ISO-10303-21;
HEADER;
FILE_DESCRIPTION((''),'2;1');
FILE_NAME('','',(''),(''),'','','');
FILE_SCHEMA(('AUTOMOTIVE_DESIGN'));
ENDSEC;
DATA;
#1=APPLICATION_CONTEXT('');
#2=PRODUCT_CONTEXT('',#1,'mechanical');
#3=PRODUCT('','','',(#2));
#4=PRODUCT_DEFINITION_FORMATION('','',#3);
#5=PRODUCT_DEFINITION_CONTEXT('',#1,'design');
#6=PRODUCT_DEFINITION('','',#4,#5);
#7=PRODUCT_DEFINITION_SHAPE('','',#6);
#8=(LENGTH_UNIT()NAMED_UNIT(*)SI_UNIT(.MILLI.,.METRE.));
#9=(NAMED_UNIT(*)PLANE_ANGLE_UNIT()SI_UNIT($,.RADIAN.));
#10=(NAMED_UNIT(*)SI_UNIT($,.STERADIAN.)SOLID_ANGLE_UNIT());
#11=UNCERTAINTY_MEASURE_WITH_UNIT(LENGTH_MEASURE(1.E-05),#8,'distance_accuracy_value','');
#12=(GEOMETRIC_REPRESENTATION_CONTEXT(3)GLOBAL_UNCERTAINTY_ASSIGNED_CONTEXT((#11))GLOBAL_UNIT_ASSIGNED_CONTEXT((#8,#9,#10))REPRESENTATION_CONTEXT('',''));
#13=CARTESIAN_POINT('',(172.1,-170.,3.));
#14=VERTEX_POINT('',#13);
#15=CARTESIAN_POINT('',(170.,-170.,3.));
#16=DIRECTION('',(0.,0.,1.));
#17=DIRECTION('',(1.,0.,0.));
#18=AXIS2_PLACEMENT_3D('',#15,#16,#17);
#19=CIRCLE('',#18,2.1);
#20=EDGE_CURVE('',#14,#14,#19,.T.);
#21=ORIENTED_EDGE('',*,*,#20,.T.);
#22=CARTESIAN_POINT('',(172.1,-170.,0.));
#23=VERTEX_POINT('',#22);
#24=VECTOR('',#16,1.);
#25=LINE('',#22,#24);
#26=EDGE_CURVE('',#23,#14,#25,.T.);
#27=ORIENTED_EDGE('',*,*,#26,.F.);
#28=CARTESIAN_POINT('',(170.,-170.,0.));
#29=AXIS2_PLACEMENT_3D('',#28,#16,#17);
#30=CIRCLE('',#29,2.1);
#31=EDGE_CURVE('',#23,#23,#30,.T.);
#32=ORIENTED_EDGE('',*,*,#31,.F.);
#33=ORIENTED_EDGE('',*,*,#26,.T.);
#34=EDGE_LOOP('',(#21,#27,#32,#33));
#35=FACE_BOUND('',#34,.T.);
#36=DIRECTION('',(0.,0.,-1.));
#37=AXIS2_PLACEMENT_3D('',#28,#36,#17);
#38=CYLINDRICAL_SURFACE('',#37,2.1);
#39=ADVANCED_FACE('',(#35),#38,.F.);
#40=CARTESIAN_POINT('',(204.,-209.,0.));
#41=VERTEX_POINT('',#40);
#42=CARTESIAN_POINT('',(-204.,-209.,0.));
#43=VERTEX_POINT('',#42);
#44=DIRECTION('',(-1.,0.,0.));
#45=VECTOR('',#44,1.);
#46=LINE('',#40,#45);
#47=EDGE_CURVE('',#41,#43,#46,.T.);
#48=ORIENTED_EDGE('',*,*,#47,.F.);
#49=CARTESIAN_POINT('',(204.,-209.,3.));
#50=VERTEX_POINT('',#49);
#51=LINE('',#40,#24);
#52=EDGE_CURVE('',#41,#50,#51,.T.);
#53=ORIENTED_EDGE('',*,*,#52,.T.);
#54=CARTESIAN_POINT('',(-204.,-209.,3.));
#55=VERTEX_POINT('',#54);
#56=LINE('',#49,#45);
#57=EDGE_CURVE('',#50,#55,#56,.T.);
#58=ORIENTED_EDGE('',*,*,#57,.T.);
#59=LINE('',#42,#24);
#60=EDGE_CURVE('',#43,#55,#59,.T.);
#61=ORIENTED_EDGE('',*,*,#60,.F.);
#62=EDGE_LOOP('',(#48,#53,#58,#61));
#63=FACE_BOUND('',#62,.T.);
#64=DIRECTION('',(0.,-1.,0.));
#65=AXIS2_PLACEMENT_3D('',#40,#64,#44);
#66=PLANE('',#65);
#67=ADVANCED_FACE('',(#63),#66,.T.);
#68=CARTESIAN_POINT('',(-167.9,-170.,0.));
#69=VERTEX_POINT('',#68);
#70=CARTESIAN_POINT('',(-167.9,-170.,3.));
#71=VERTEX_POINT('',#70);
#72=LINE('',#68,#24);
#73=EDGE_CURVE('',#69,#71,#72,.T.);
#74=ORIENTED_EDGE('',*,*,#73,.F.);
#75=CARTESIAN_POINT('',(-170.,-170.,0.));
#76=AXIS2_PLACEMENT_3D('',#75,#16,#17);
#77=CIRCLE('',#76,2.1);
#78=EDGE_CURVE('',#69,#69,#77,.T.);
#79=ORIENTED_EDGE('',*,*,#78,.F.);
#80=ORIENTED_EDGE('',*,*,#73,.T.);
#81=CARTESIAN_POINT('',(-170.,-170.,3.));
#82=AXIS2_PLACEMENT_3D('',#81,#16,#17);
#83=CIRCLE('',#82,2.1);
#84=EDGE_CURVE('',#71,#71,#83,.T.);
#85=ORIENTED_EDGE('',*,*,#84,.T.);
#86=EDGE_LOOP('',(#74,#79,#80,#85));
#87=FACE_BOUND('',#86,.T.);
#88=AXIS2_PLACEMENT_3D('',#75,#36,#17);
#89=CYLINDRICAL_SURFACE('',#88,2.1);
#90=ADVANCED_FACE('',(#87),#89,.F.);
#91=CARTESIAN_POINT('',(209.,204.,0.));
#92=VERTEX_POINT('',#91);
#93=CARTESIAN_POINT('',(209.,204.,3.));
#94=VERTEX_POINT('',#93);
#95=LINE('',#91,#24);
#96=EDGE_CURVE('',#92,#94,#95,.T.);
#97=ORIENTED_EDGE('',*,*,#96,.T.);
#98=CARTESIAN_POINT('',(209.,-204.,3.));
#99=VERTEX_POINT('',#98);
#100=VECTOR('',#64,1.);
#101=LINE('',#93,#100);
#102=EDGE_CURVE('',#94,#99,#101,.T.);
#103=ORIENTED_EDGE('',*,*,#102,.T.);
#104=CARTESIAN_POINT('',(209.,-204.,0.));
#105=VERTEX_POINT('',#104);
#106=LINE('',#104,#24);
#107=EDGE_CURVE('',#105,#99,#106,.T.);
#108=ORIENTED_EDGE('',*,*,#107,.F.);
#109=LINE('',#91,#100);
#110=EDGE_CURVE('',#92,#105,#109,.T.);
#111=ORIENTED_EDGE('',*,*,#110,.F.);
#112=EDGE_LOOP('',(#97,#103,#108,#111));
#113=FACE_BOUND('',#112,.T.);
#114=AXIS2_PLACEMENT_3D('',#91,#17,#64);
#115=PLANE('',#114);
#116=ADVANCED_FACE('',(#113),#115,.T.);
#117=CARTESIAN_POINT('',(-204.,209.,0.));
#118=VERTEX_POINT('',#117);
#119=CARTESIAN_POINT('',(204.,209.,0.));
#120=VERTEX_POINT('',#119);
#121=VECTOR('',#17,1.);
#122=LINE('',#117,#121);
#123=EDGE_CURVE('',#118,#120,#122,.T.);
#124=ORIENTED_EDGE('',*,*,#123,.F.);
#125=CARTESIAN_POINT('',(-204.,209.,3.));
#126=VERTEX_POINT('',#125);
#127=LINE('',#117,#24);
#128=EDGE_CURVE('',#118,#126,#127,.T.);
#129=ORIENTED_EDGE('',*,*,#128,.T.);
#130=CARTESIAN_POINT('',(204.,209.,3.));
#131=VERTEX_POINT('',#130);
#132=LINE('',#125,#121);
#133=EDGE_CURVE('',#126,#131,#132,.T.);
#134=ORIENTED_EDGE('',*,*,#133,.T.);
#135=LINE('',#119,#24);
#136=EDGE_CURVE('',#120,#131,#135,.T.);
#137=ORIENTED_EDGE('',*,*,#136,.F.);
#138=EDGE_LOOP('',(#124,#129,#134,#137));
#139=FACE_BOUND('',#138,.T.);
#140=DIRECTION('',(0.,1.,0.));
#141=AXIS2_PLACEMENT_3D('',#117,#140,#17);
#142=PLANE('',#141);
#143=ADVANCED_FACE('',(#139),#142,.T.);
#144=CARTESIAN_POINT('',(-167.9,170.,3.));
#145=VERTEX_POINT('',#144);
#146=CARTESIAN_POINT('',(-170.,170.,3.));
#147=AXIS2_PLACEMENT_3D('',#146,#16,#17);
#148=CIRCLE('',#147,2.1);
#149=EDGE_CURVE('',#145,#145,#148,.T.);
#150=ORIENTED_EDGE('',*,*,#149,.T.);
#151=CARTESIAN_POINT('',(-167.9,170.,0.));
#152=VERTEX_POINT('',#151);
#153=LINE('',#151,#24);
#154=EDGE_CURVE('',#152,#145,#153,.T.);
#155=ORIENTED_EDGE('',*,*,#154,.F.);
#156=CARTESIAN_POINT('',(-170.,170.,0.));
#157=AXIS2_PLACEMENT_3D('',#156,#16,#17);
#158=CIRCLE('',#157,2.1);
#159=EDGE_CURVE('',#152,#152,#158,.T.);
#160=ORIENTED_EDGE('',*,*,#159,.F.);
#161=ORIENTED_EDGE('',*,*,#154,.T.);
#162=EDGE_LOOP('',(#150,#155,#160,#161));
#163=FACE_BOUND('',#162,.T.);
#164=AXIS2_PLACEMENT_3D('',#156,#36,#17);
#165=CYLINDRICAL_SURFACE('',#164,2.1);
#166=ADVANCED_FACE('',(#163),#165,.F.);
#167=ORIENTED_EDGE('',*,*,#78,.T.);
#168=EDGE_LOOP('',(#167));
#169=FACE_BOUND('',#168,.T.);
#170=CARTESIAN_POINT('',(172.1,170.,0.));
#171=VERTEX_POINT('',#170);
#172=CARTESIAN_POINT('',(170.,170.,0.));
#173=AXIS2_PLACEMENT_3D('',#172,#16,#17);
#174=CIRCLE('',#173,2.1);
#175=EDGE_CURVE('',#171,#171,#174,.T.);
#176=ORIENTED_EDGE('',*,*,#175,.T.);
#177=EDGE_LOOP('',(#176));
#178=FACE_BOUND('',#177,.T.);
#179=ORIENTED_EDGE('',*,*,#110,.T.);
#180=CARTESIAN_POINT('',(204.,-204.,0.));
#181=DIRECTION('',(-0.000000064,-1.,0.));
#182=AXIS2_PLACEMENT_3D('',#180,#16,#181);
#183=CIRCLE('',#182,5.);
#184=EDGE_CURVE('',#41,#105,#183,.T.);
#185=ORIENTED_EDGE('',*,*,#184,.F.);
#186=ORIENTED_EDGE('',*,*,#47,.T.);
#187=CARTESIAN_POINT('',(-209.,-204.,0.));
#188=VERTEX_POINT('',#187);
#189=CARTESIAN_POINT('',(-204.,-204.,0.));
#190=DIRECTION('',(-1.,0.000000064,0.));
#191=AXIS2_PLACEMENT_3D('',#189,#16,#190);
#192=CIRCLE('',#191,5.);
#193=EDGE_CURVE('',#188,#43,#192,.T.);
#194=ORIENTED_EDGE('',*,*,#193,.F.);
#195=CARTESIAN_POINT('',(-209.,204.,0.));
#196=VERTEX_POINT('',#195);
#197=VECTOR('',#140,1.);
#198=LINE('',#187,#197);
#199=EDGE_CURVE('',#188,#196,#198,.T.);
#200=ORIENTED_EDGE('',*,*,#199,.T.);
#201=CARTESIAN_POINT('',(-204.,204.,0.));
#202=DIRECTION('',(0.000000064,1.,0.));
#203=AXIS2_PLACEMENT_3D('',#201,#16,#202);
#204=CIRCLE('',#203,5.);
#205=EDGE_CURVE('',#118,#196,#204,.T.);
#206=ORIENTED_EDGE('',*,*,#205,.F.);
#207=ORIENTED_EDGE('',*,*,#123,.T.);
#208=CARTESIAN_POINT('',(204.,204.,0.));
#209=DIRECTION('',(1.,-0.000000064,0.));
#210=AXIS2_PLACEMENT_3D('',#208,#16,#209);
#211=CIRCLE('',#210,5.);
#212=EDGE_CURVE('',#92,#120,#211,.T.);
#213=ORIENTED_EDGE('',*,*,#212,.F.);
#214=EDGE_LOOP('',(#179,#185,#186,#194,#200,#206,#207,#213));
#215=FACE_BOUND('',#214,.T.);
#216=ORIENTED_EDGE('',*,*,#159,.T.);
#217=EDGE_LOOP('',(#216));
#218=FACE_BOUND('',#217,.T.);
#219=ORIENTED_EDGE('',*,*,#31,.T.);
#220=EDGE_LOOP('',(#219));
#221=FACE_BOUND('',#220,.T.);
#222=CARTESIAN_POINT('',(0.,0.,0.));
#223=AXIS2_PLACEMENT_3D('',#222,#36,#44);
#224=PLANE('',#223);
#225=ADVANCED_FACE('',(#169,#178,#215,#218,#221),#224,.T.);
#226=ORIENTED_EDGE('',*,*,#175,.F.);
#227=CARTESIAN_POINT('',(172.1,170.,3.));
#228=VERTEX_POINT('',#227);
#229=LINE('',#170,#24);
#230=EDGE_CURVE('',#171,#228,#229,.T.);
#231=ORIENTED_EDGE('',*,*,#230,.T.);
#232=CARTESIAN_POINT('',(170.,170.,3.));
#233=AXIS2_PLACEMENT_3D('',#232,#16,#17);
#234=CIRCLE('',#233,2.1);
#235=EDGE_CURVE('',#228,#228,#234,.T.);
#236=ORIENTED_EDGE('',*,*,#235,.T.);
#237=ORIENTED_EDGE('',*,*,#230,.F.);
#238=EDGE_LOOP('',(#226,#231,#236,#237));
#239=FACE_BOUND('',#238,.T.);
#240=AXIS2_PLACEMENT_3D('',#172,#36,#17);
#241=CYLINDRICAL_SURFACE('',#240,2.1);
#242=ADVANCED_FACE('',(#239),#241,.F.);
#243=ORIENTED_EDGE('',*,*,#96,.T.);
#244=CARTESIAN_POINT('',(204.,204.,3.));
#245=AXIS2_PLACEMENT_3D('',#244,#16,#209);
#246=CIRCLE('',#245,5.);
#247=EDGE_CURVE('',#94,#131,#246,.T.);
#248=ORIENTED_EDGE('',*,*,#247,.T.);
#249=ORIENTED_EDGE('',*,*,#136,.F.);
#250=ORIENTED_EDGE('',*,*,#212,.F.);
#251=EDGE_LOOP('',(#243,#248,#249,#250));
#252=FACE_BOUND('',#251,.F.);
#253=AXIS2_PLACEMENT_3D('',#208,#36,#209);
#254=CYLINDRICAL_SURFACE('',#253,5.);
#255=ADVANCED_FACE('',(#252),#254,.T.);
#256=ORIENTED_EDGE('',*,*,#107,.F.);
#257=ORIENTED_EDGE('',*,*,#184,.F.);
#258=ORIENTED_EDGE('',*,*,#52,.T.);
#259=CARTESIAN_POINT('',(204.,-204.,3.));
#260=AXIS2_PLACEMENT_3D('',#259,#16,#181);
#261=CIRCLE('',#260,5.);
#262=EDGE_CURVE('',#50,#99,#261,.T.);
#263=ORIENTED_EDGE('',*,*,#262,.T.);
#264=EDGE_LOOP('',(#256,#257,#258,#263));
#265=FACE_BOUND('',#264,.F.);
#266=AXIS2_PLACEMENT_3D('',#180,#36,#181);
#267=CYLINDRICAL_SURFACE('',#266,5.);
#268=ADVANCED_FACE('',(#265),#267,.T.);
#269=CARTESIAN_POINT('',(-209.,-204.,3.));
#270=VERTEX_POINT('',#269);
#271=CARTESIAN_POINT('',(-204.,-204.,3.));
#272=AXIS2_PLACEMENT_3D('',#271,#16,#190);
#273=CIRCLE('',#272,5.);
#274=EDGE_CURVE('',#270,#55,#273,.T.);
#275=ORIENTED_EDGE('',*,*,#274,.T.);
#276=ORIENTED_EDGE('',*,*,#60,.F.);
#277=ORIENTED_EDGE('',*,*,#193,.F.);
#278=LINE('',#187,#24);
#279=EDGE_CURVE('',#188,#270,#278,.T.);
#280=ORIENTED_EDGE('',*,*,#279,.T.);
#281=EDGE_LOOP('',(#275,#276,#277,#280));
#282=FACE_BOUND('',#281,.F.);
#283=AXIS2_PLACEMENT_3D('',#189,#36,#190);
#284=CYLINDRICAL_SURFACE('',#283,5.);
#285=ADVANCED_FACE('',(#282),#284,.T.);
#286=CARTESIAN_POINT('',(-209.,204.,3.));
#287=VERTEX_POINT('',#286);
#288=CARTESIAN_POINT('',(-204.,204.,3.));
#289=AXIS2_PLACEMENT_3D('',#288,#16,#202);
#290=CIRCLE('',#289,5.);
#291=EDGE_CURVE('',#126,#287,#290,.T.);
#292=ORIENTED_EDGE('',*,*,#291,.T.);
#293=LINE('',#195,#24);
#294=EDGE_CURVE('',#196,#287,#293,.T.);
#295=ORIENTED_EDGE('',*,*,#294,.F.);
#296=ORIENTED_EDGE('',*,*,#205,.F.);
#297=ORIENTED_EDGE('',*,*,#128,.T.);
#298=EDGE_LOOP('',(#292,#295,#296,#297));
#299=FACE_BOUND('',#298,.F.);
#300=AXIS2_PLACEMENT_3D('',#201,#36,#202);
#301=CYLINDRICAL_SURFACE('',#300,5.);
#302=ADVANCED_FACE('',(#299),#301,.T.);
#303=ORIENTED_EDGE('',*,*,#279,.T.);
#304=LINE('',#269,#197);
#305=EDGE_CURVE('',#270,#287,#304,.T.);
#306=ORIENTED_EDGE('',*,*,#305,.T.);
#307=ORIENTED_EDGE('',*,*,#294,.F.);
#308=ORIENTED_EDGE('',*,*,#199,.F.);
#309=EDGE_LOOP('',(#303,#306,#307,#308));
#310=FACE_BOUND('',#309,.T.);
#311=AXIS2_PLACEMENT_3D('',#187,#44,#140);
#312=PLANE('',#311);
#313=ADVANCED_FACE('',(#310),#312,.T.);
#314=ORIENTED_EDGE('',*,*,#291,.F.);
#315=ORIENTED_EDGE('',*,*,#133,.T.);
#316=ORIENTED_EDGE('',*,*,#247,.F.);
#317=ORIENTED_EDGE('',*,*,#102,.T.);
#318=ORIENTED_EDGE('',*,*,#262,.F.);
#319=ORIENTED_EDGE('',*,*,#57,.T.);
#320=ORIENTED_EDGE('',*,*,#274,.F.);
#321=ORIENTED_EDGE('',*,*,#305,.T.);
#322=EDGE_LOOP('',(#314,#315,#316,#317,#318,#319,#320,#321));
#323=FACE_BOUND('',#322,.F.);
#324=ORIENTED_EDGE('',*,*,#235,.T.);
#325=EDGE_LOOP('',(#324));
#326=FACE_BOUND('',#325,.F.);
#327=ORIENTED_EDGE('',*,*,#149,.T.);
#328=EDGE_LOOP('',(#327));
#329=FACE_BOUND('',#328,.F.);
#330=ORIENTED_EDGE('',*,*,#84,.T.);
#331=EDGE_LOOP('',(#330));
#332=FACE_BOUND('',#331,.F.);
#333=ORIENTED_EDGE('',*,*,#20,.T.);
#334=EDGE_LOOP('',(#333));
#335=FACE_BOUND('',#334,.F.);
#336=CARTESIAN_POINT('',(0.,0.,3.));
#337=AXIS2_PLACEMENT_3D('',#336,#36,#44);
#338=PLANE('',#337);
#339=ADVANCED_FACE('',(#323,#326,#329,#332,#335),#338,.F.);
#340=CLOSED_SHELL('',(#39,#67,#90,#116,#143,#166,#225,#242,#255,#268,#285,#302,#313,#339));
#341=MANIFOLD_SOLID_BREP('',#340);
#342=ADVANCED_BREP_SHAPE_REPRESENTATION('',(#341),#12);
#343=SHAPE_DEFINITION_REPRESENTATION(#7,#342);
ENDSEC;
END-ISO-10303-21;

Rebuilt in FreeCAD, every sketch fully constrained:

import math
import FreeCAD as App
import Part
import Sketcher
Q = App.Units.Quantity

doc = App.newDocument("Part")
body = doc.addObject("PartDesign::Body", "Body")

sketch1 = body.newObject("Sketcher::SketchObject", "Sketch")
sketch1.AttachmentSupport = (doc.getObject("XY_Plane"), [""])
sketch1.MapMode = "FlatFace"
sketch1.addGeometry([
    Part.LineSegment(App.Vector(204, 209, 0), App.Vector(-204, 209, 0)),
    Part.ArcOfCircle(Part.Circle(App.Vector(-204, 204, 0), App.Vector(0, 0, 1), 5), math.radians(90), math.radians(180)),
    Part.LineSegment(App.Vector(-209, 204, 0), App.Vector(-209, -204, 0)),
    Part.ArcOfCircle(Part.Circle(App.Vector(-204, -204, 0), App.Vector(0, 0, 1), 5), math.radians(180), math.radians(270)),
    Part.LineSegment(App.Vector(-204, -209, 0), App.Vector(204, -209, 0)),
    Part.ArcOfCircle(Part.Circle(App.Vector(204, -204, 0), App.Vector(0, 0, 1), 5), math.radians(-90), math.radians(0)),
    Part.LineSegment(App.Vector(209, -204, 0), App.Vector(209, 204, 0)),
    Part.ArcOfCircle(Part.Circle(App.Vector(204, 204, 0), App.Vector(0, 0, 1), 5), math.radians(0), math.radians(90)),
    Part.Circle(App.Vector(170, -170, 0), App.Vector(0, 0, 1), 2.1),
    Part.Circle(App.Vector(-170, -170, 0), App.Vector(0, 0, 1), 2.1),
    Part.Circle(App.Vector(170, 170, 0), App.Vector(0, 0, 1), 2.1),
    Part.Circle(App.Vector(-170, 170, 0), App.Vector(0, 0, 1), 2.1),
], False)
sketch1.addConstraint([
    Sketcher.Constraint("Tangent", 0, 2, 1, 1),
    Sketcher.Constraint("Tangent", 1, 2, 2, 1),
    Sketcher.Constraint("Tangent", 2, 2, 3, 1),
    Sketcher.Constraint("Tangent", 3, 2, 4, 1),
    Sketcher.Constraint("Tangent", 4, 2, 5, 1),
    Sketcher.Constraint("Tangent", 5, 2, 6, 1),
    Sketcher.Constraint("Tangent", 6, 2, 7, 1),
    Sketcher.Constraint("Tangent", 7, 2, 0, 1),
    Sketcher.Constraint("Horizontal", 0),
    Sketcher.Constraint("Vertical", 2),
    Sketcher.Constraint("Horizontal", 4),
    Sketcher.Constraint("Vertical", 6),
    Sketcher.Constraint("Equal", 1, 3),
    Sketcher.Constraint("Equal", 3, 5),
    Sketcher.Constraint("Equal", 5, 7),
    Sketcher.Constraint("Equal", 8, 9),
    Sketcher.Constraint("Equal", 9, 10),
    Sketcher.Constraint("Equal", 10, 11),
    Sketcher.Constraint("Symmetric", 1, 3, 5, 3, -1, 1),
    Sketcher.Constraint("Symmetric", 9, 3, 10, 3, -1, 1),
    Sketcher.Constraint("Symmetric", 8, 3, 11, 3, -1, 1),
    Sketcher.Constraint("Symmetric", 8, 3, 9, 3, -2),
    Sketcher.Constraint("Equal", 4, 2),
    Sketcher.Constraint("Radius", 1, Q("5 mm")),
    Sketcher.Constraint("Diameter", 8, Q("4.2 mm")),
    Sketcher.Constraint("DistanceX", 0, 2, 0, 1, Q("408 mm")),
    Sketcher.Constraint("DistanceX", -1, 1, 8, 3, Q("170 mm")),
    Sketcher.Constraint("DistanceY", 8, 3, -1, 1, Q("170 mm")),
])
pad1 = body.newObject("PartDesign::Pad", "Pad")
pad1.Profile = sketch1
pad1.Length = 3

doc.recompute()
